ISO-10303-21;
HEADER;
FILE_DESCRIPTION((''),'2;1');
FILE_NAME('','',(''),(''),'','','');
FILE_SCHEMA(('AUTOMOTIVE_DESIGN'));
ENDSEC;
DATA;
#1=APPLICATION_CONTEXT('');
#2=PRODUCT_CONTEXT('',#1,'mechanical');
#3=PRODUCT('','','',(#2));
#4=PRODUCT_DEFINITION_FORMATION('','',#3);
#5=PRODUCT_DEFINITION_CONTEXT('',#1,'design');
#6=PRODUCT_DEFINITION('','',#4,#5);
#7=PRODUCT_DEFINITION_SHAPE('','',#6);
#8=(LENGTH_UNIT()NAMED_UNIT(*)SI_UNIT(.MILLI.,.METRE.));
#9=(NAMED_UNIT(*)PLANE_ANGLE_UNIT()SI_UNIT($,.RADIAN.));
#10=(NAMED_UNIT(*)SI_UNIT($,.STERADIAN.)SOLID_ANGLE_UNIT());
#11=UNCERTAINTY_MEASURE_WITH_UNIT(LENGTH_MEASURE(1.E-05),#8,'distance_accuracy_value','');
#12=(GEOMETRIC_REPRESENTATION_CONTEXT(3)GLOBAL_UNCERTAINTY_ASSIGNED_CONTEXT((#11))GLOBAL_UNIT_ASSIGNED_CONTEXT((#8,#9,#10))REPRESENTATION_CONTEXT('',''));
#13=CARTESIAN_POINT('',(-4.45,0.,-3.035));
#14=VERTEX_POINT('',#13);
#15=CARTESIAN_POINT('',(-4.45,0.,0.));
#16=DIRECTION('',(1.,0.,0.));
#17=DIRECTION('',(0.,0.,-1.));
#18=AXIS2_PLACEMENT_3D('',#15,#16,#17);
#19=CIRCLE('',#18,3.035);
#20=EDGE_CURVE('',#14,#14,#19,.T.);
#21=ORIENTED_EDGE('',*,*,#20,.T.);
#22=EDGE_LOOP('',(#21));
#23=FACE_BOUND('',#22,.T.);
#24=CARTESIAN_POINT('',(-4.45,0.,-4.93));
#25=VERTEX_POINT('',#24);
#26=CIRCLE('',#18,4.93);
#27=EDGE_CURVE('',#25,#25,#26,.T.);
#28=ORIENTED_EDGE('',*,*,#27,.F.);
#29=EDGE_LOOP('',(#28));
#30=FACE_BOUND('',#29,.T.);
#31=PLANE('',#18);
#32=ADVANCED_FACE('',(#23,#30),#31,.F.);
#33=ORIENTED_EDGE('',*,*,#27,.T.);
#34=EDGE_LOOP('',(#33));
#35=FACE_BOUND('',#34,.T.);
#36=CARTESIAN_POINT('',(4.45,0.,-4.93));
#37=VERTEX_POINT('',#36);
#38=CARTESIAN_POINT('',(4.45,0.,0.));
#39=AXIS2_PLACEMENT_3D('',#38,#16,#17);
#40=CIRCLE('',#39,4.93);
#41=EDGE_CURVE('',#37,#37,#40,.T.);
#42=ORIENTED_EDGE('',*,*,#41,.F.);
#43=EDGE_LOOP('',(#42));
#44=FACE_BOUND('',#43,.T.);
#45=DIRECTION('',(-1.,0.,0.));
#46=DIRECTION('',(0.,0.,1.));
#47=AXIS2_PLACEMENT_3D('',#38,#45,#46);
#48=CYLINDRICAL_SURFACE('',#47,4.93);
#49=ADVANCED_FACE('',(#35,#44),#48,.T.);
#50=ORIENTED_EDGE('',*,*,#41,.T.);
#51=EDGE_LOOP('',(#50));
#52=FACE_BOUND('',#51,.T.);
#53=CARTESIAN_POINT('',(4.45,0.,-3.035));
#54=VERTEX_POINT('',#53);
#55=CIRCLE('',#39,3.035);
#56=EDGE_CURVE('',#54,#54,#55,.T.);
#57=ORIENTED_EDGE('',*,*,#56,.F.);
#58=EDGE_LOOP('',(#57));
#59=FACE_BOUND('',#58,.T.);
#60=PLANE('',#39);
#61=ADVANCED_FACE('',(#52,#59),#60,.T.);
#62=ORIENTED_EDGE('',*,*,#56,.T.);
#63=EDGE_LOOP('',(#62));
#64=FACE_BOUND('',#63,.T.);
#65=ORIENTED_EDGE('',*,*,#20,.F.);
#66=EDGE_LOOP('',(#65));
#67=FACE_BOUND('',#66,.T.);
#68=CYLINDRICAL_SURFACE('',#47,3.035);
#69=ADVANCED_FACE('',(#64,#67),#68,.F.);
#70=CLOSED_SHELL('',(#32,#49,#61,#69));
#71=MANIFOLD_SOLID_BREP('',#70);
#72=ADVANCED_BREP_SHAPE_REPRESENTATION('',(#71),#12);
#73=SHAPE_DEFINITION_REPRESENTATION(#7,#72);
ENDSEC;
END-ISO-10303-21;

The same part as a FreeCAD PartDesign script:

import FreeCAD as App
import Part
import Sketcher
from FreeCAD import Vector
Q = App.Units.Quantity

doc = App.newDocument("Part")
body = doc.addObject("PartDesign::Body", "Body")

# Sketch on YZ plane
sketch1 = body.newObject("Sketcher::SketchObject", "Sketch")
sketch1.AttachmentSupport = (doc.getObject("YZ_Plane"), [""])
sketch1.MapMode = "FlatFace"
sketch1.addGeometry([
    Part.Circle(Vector(0, 0, 0), Vector(0, 0, 1), 4.93),
    Part.Circle(Vector(0, 0, 0), Vector(0, 0, 1), 3.035),
], False)
sketch1.addConstraint([
    Sketcher.Constraint("Coincident", 0, 3, -1, 1),
    Sketcher.Constraint("Coincident", 1, 3, -1, 1),
    Sketcher.Constraint("Diameter", 0, Q("9.86 mm")),
    Sketcher.Constraint("Diameter", 1, Q("6.07 mm")),
])
pad1 = body.newObject("PartDesign::Pad", "Pad")
pad1.Profile = sketch1
pad1.Length = 8.9
pad1.Midplane = True

doc.recompute()
